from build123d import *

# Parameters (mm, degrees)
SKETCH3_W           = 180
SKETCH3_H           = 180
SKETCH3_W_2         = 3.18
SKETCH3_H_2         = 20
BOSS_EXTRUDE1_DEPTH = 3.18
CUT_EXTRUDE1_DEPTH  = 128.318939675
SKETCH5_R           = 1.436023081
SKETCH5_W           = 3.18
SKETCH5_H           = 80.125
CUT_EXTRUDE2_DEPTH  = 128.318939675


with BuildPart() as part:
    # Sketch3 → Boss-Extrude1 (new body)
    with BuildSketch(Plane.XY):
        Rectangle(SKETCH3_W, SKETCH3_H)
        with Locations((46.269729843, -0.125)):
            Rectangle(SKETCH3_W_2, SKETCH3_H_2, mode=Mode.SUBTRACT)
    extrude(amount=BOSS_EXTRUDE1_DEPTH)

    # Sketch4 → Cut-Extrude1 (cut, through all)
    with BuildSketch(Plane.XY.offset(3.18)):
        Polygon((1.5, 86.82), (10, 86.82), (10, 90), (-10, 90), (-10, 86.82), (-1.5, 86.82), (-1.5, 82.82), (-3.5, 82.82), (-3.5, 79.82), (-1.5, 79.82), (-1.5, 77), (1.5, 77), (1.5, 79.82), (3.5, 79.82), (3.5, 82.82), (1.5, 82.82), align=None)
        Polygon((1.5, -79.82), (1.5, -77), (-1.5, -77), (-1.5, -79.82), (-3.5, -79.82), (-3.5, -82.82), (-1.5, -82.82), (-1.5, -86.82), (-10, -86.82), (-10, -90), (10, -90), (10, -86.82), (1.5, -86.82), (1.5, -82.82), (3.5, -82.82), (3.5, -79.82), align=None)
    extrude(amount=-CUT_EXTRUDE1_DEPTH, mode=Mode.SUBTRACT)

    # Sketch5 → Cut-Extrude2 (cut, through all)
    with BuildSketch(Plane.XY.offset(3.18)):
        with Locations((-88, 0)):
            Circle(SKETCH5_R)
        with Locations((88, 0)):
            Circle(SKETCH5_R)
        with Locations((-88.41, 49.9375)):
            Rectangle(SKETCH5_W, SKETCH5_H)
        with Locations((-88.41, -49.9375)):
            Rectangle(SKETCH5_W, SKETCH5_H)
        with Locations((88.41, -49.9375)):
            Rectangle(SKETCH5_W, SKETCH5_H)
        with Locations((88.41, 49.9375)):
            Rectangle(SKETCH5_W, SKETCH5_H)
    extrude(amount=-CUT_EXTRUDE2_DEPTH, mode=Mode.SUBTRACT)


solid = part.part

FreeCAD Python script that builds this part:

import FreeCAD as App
import Part
import Sketcher

doc = App.newDocument("Part")
body = doc.addObject("PartDesign::Body", "Body")

sketch1 = body.newObject("Sketcher::SketchObject", "Sketch")
sketch1.AttachmentSupport = (doc.getObject("XY_Plane"), [""])
sketch1.MapMode = "FlatFace"
sketch1.addGeometry(Part.LineSegment(App.Vector(-90, 90, 0), App.Vector(-90, -90, 0)), False)
sketch1.addGeometry(Part.LineSegment(App.Vector(-90, -90, 0), App.Vector(90, -90, 0)), False)
sketch1.addGeometry(Part.LineSegment(App.Vector(90, -90, 0), App.Vector(90, 90, 0)), False)
sketch1.addGeometry(Part.LineSegment(App.Vector(90, 90, 0), App.Vector(-90, 90, 0)), False)
sketch1.addGeometry(Part.LineSegment(App.Vector(47.85973, -10.125, 0), App.Vector(44.67973, -10.125, 0)), False)
sketch1.addGeometry(Part.LineSegment(App.Vector(44.67973, -10.125, 0), App.Vector(44.67973, 9.875, 0)), False)
sketch1.addGeometry(Part.LineSegment(App.Vector(44.67973, 9.875, 0), App.Vector(47.85973, 9.875, 0)), False)
sketch1.addGeometry(Part.LineSegment(App.Vector(47.85973, 9.875, 0), App.Vector(47.85973, -10.125, 0)), False)
sketch1.addConstraint(Sketcher.Constraint("Coincident", 0, 2, 1, 1))
sketch1.addConstraint(Sketcher.Constraint("Coincident", 1, 2, 2, 1))
sketch1.addConstraint(Sketcher.Constraint("Coincident", 2, 2, 3, 1))
sketch1.addConstraint(Sketcher.Constraint("Coincident", 3, 2, 0, 1))
sketch1.addConstraint(Sketcher.Constraint("Coincident", 4, 2, 5, 1))
sketch1.addConstraint(Sketcher.Constraint("Coincident", 5, 2, 6, 1))
sketch1.addConstraint(Sketcher.Constraint("Coincident", 6, 2, 7, 1))
sketch1.addConstraint(Sketcher.Constraint("Coincident", 7, 2, 4, 1))
sketch1.addConstraint(Sketcher.Constraint("Vertical", 0))
sketch1.addConstraint(Sketcher.Constraint("Horizontal", 1))
sketch1.addConstraint(Sketcher.Constraint("Vertical", 2))
sketch1.addConstraint(Sketcher.Constraint("Horizontal", 3))
sketch1.addConstraint(Sketcher.Constraint("Horizontal", 4))
sketch1.addConstraint(Sketcher.Constraint("Vertical", 5))
sketch1.addConstraint(Sketcher.Constraint("Horizontal", 6))
sketch1.addConstraint(Sketcher.Constraint("Vertical", 7))
sketch1.addConstraint(Sketcher.Constraint("Symmetric", 0, 2, 2, 2, -1, 1))
sketch1.addConstraint(Sketcher.Constraint("Equal", 3, 0))
sketch1.addConstraint(Sketcher.Constraint("DistanceX", 1, 1, 1, 2, 180.0))
sketch1.addConstraint(Sketcher.Constraint("DistanceY", 5, 1, 5, 2, 20.0))
sketch1.addConstraint(Sketcher.Constraint("DistanceX", 4, 2, 4, 1, 3.18))
sketch1.addConstraint(Sketcher.Constraint("DistanceY", 4, 2, -1, 1, 10.125))
sketch1.addConstraint(Sketcher.Constraint("DistanceX", -1, 1, 4, 2, 44.67973))
pad1 = body.newObject("PartDesign::Pad", "Pad")
pad1.Profile = sketch1
pad1.Length = 3.18

sketch2 = body.newObject("Sketcher::SketchObject", "Sketch001")
sketch2.AttachmentSupport = (doc.getObject("XY_Plane"), [""])
sketch2.MapMode = "FlatFace"
sketch2.AttachmentOffset = App.Placement(App.Vector(0, 0, 3.18), App.Rotation())
sketch2.addGeometry(Part.LineSegment(App.Vector(1.5, 86.82, 0), App.Vector(10, 86.82, 0)), False)
sketch2.addGeometry(Part.LineSegment(App.Vector(10, 86.82, 0), App.Vector(10, 90, 0)), False)
sketch2.addGeometry(Part.LineSegment(App.Vector(10, 90, 0), App.Vector(-10, 90, 0)), False)
sketch2.addGeometry(Part.LineSegment(App.Vector(-10, 90, 0), App.Vector(-10, 86.82, 0)), False)
sketch2.addGeometry(Part.LineSegment(App.Vector(-10, 86.82, 0), App.Vector(-1.5, 86.82, 0)), False)
sketch2.addGeometry(Part.LineSegment(App.Vector(-1.5, 86.82, 0), App.Vector(-1.5, 82.82, 0)), False)
sketch2.addGeometry(Part.LineSegment(App.Vector(-1.5, 82.82, 0), App.Vector(-3.5, 82.82, 0)), False)
sketch2.addGeometry(Part.LineSegment(App.Vector(-3.5, 82.82, 0), App.Vector(-3.5, 79.82, 0)), False)
sketch2.addGeometry(Part.LineSegment(App.Vector(-3.5, 79.82, 0), App.Vector(-1.5, 79.82, 0)), False)
sketch2.addGeometry(Part.LineSegment(App.Vector(-1.5, 79.82, 0), App.Vector(-1.5, 77, 0)), False)
sketch2.addGeometry(Part.LineSegment(App.Vector(-1.5, 77, 0), App.Vector(1.5, 77, 0)), False)
sketch2.addGeometry(Part.LineSegment(App.Vector(1.5, 77, 0), App.Vector(1.5, 79.82, 0)), False)
sketch2.addGeometry(Part.LineSegment(App.Vector(1.5, 79.82, 0), App.Vector(3.5, 79.82, 0)), False)
sketch2.addGeometry(Part.LineSegment(App.Vector(3.5, 79.82, 0), App.Vector(3.5, 82.82, 0)), False)
sketch2.addGeometry(Part.LineSegment(App.Vector(3.5, 82.82, 0), App.Vector(1.5, 82.82, 0)), False)
sketch2.addGeometry(Part.LineSegment(App.Vector(1.5, 82.82, 0), App.Vector(1.5, 86.82, 0)), False)
sketch2.addGeometry(Part.LineSegment(App.Vector(1.5, -79.82, 0), App.Vector(1.5, -77, 0)), False)
sketch2.addGeometry(Part.LineSegment(App.Vector(1.5, -77, 0), App.Vector(-1.5, -77, 0)), False)
sketch2.addGeometry(Part.LineSegment(App.Vector(-1.5, -77, 0), App.Vector(-1.5, -79.82, 0)), False)
sketch2.addGeometry(Part.LineSegment(App.Vector(-1.5, -79.82, 0), App.Vector(-3.5, -79.82, 0)), False)
sketch2.addGeometry(Part.LineSegment(App.Vector(-3.5, -79.82, 0), App.Vector(-3.5, -82.82, 0)), False)
sketch2.addGeometry(Part.LineSegment(App.Vector(-3.5, -82.82, 0), App.Vector(-1.5, -82.82, 0)), False)
sketch2.addGeometry(Part.LineSegment(App.Vector(-1.5, -82.82, 0), App.Vector(-1.5, -86.82, 0)), False)
sketch2.addGeometry(Part.LineSegment(App.Vector(-1.5, -86.82, 0), App.Vector(-10, -86.82, 0)), False)
sketch2.addGeometry(Part.LineSegment(App.Vector(-10, -86.82, 0), App.Vector(-10, -90, 0)), False)
sketch2.addGeometry(Part.LineSegment(App.Vector(-10, -90, 0), App.Vector(10, -90, 0)), False)
sketch2.addGeometry(Part.LineSegment(App.Vector(10, -90, 0), App.Vector(10, -86.82, 0)), False)
sketch2.addGeometry(Part.LineSegment(App.Vector(10, -86.82, 0), App.Vector(1.5, -86.82, 0)), False)
sketch2.addGeometry(Part.LineSegment(App.Vector(1.5, -86.82, 0), App.Vector(1.5, -82.82, 0)), False)
sketch2.addGeometry(Part.LineSegment(App.Vector(1.5, -82.82, 0), App.Vector(3.5, -82.82, 0)), False)
sketch2.addGeometry(Part.LineSegment(App.Vector(3.5, -82.82, 0), App.Vector(3.5, -79.82, 0)), False)
sketch2.addGeometry(Part.LineSegment(App.Vector(3.5, -79.82, 0), App.Vector(1.5, -79.82, 0)), False)
sketch2.addConstraint(Sketcher.Constraint("Coincident", 0, 2, 1, 1))
sketch2.addConstraint(Sketcher.Constraint("Coincident", 1, 2, 2, 1))
sketch2.addConstraint(Sketcher.Constraint("Coincident", 2, 2, 3, 1))
sketch2.addConstraint(Sketcher.Constraint("Coincident", 3, 2, 4, 1))
sketch2.addConstraint(Sketcher.Constraint("Coincident", 4, 2, 5, 1))
sketch2.addConstraint(Sketcher.Constraint("Coincident", 5, 2, 6, 1))
sketch2.addConstraint(Sketcher.Constraint("Coincident", 6, 2, 7, 1))
sketch2.addConstraint(Sketcher.Constraint("Coincident", 7, 2, 8, 1))
sketch2.addConstraint(Sketcher.Constraint("Coincident", 8, 2, 9, 1))
sketch2.addConstraint(Sketcher.Constraint("Coincident", 9, 2, 10, 1))
sketch2.addConstraint(Sketcher.Constraint("Coincident", 10, 2, 11, 1))
sketch2.addConstraint(Sketcher.Constraint("Coincident", 11, 2, 12, 1))
sketch2.addConstraint(Sketcher.Constraint("Coincident", 12, 2, 13, 1))
sketch2.addConstraint(Sketcher.Constraint("Coincident", 13, 2, 14, 1))
sketch2.addConstraint(Sketcher.Constraint("Coincident", 14, 2, 15, 1))
sketch2.addConstraint(Sketcher.Constraint("Coincident", 15, 2, 0, 1))
sketch2.addConstraint(Sketcher.Constraint("Coincident", 16, 2, 17, 1))
sketch2.addConstraint(Sketcher.Constraint("Coincident", 17, 2, 18, 1))
sketch2.addConstraint(Sketcher.Constraint("Coincident", 18, 2, 19, 1))
sketch2.addConstraint(Sketcher.Constraint("Coincident", 19, 2, 20, 1))
sketch2.addConstraint(Sketcher.Constraint("Coincident", 20, 2, 21, 1))
sketch2.addConstraint(Sketcher.Constraint("Coincident", 21, 2, 22, 1))
sketch2.addConstraint(Sketcher.Constraint("Coincident", 22, 2, 23, 1))
sketch2.addConstraint(Sketcher.Constraint("Coincident", 23, 2, 24, 1))
sketch2.addConstraint(Sketcher.Constraint("Coincident", 24, 2, 25, 1))
sketch2.addConstraint(Sketcher.Constraint("Coincident", 25, 2, 26, 1))
sketch2.addConstraint(Sketcher.Constraint("Coincident", 26, 2, 27, 1))
sketch2.addConstraint(Sketcher.Constraint("Coincident", 27, 2, 28, 1))
sketch2.addConstraint(Sketcher.Constraint("Coincident", 28, 2, 29, 1))
sketch2.addConstraint(Sketcher.Constraint("Coincident", 29, 2, 30, 1))
sketch2.addConstraint(Sketcher.Constraint("Coincident", 30, 2, 31, 1))
sketch2.addConstraint(Sketcher.Constraint("Coincident", 31, 2, 16, 1))
sketch2.addConstraint(Sketcher.Constraint("Horizontal", 0))
sketch2.addConstraint(Sketcher.Constraint("Vertical", 1))
sketch2.addConstraint(Sketcher.Constraint("Horizontal", 2))
sketch2.addConstraint(Sketcher.Constraint("Vertical", 3))
sketch2.addConstraint(Sketcher.Constraint("Horizontal", 4))
sketch2.addConstraint(Sketcher.Constraint("Vertical", 5))
sketch2.addConstraint(Sketcher.Constraint("Horizontal", 6))
sketch2.addConstraint(Sketcher.Constraint("Vertical", 7))
sketch2.addConstraint(Sketcher.Constraint("Horizontal", 8))
sketch2.addConstraint(Sketcher.Constraint("Vertical", 9))
sketch2.addConstraint(Sketcher.Constraint("Horizontal", 10))
sketch2.addConstraint(Sketcher.Constraint("Vertical", 11))
sketch2.addConstraint(Sketcher.Constraint("Horizontal", 12))
sketch2.addConstraint(Sketcher.Constraint("Vertical", 13))
sketch2.addConstraint(Sketcher.Constraint("Horizontal", 14))
sketch2.addConstraint(Sketcher.Constraint("Vertical", 15))
sketch2.addConstraint(Sketcher.Constraint("Vertical", 16))
sketch2.addConstraint(Sketcher.Constraint("Horizontal", 17))
sketch2.addConstraint(Sketcher.Constraint("Vertical", 18))
sketch2.addConstraint(Sketcher.Constraint("Horizontal", 19))
sketch2.addConstraint(Sketcher.Constraint("Vertical", 20))
sketch2.addConstraint(Sketcher.Constraint("Horizontal", 21))
sketch2.addConstraint(Sketcher.Constraint("Vertical", 22))
sketch2.addConstraint(Sketcher.Constraint("Horizontal", 23))
sketch2.addConstraint(Sketcher.Constraint("Vertical", 24))
sketch2.addConstraint(Sketcher.Constraint("Horizontal", 25))
sketch2.addConstraint(Sketcher.Constraint("Vertical", 26))
sketch2.addConstraint(Sketcher.Constraint("Horizontal", 27))
sketch2.addConstraint(Sketcher.Constraint("Vertical", 28))
sketch2.addConstraint(Sketcher.Constraint("Horizontal", 29))
sketch2.addConstraint(Sketcher.Constraint("Vertical", 30))
sketch2.addConstraint(Sketcher.Constraint("Horizontal", 31))
sketch2.addConstraint(Sketcher.Constraint("Symmetric", 9, 2, 16, 2, -1, 1))
sketch2.addConstraint(Sketcher.Constraint("Symmetric", 11, 2, 18, 2, -1, 1))
sketch2.addConstraint(Sketcher.Constraint("Symmetric", 13, 2, 20, 2, -1, 1))
sketch2.addConstraint(Sketcher.Constraint("Symmetric", 15, 2, 22, 2, -1, 1))
sketch2.addConstraint(Sketcher.Constraint("Symmetric", 1, 2, 24, 2, -1, 1))
sketch2.addConstraint(Sketcher.Constraint("Symmetric", 3, 2, 26, 2, -1, 1))
sketch2.addConstraint(Sketcher.Constraint("Symmetric", 5, 2, 28, 2, -1, 1))
sketch2.addConstraint(Sketcher.Constraint("Symmetric", 7, 2, 30, 2, -1, 1))
sketch2.addConstraint(Sketcher.Constraint("Symmetric", 0, 2, 3, 2, -2))
sketch2.addConstraint(Sketcher.Constraint("Symmetric", 8, 2, 11, 2, -2))
sketch2.addConstraint(Sketcher.Constraint("Symmetric", 6, 2, 13, 2, -2))
sketch2.addConstraint(Sketcher.Constraint("Vertical", 5, 2, 8, 2))
sketch2.addConstraint(Sketcher.Constraint("Vertical", 11, 2, 14, 2))
sketch2.addConstraint(Sketcher.Constraint("Equal", 17, 7))
sketch2.addConstraint(Sketcher.Constraint("DistanceX", 2, 2, 2, 1, 20.0))
sketch2.addConstraint(Sketcher.Constraint("DistanceX", 6, 2, 6, 1, 2.0))
sketch2.addConstraint(Sketcher.Constraint("DistanceX", 10, 1, 10, 2, 3.0))
sketch2.addConstraint(Sketcher.Constraint("DistanceY", 5, 2, 5, 1, 4.0))
sketch2.addConstraint(Sketcher.Constraint("DistanceY", -1, 1, 1, 2, 90.0))
sketch2.addConstraint(Sketcher.Constraint("DistanceY", -1, 1, 9, 2, 77.0))
sketch2.addConstraint(Sketcher.Constraint("DistanceY", 1, 1, 1, 2, 3.18))
pocket1 = body.newObject("PartDesign::Pocket", "Pocket")
pocket1.Profile = sketch2
pocket1.Type = "ThroughAll"

sketch3 = body.newObject("Sketcher::SketchObject", "Sketch002")
sketch3.AttachmentSupport = (doc.getObject("XY_Plane"), [""])
sketch3.MapMode = "FlatFace"
sketch3.AttachmentOffset = App.Placement(App.Vector(0, 0, 3.18), App.Rotation())
sketch3.addGeometry(Part.Circle(App.Vector(-88, 0, 0), App.Vector(0, 0, 1), 1.436023), False)
sketch3.addGeometry(Part.Circle(App.Vector(88, 0, 0), App.Vector(0, 0, 1), 1.436023), False)
sketch3.addGeometry(Part.LineSegment(App.Vector(-90, 90, 0), App.Vector(-90, 9.875, 0)), False)
sketch3.addGeometry(Part.LineSegment(App.Vector(-90, 9.875, 0), App.Vector(-86.82, 9.875, 0)), False)
sketch3.addGeometry(Part.LineSegment(App.Vector(-86.82, 9.875, 0), App.Vector(-86.82, 90, 0)), False)
sketch3.addGeometry(Part.LineSegment(App.Vector(-86.82, 90, 0), App.Vector(-90, 90, 0)), False)
sketch3.addGeometry(Part.LineSegment(App.Vector(-90, -9.875, 0), App.Vector(-90, -90, 0)), False)
sketch3.addGeometry(Part.LineSegment(App.Vector(-90, -90, 0), App.Vector(-86.82, -90, 0)), False)
sketch3.addGeometry(Part.LineSegment(App.Vector(-86.82, -90, 0), App.Vector(-86.82, -9.875, 0)), False)
sketch3.addGeometry(Part.LineSegment(App.Vector(-86.82, -9.875, 0), App.Vector(-90, -9.875, 0)), False)
sketch3.addGeometry(Part.LineSegment(App.Vector(86.82, -9.875, 0), App.Vector(86.82, -90, 0)), False)
sketch3.addGeometry(Part.LineSegment(App.Vector(86.82, -90, 0), App.Vector(90, -90, 0)), False)
sketch3.addGeometry(Part.LineSegment(App.Vector(90, -90, 0), App.Vector(90, -9.875, 0)), False)
sketch3.addGeometry(Part.LineSegment(App.Vector(90, -9.875, 0), App.Vector(86.82, -9.875, 0)), False)
sketch3.addGeometry(Part.LineSegment(App.Vector(86.82, 90, 0), App.Vector(86.82, 9.875, 0)), False)
sketch3.addGeometry(Part.LineSegment(App.Vector(86.82, 9.875, 0), App.Vector(90, 9.875, 0)), False)
sketch3.addGeometry(Part.LineSegment(App.Vector(90, 9.875, 0), App.Vector(90, 90, 0)), False)
sketch3.addGeometry(Part.LineSegment(App.Vector(90, 90, 0), App.Vector(86.82, 90, 0)), False)
sketch3.addConstraint(Sketcher.Constraint("Coincident", 2, 2, 3, 1))
sketch3.addConstraint(Sketcher.Constraint("Coincident", 3, 2, 4, 1))
sketch3.addConstraint(Sketcher.Constraint("Coincident", 4, 2, 5, 1))
sketch3.addConstraint(Sketcher.Constraint("Coincident", 5, 2, 2, 1))
sketch3.addConstraint(Sketcher.Constraint("Coincident", 6, 2, 7, 1))
sketch3.addConstraint(Sketcher.Constraint("Coincident", 7, 2, 8, 1))
sketch3.addConstraint(Sketcher.Constraint("Coincident", 8, 2, 9, 1))
sketch3.addConstraint(Sketcher.Constraint("Coincident", 9, 2, 6, 1))
sketch3.addConstraint(Sketcher.Constraint("Coincident", 10, 2, 11, 1))
sketch3.addConstraint(Sketcher.Constraint("Coincident", 11, 2, 12, 1))
sketch3.addConstraint(Sketcher.Constraint("Coincident", 12, 2, 13, 1))
sketch3.addConstraint(Sketcher.Constraint("Coincident", 13, 2, 10, 1))
sketch3.addConstraint(Sketcher.Constraint("Coincident", 14, 2, 15, 1))
sketch3.addConstraint(Sketcher.Constraint("Coincident", 15, 2, 16, 1))
sketch3.addConstraint(Sketcher.Constraint("Coincident", 16, 2, 17, 1))
sketch3.addConstraint(Sketcher.Constraint("Coincident", 17, 2, 14, 1))
sketch3.addConstraint(Sketcher.Constraint("Vertical", 2))
sketch3.addConstraint(Sketcher.Constraint("Horizontal", 3))
sketch3.addConstraint(Sketcher.Constraint("Vertical", 4))
sketch3.addConstraint(Sketcher.Constraint("Horizontal", 5))
sketch3.addConstraint(Sketcher.Constraint("Vertical", 6))
sketch3.addConstraint(Sketcher.Constraint("Horizontal", 7))
sketch3.addConstraint(Sketcher.Constraint("Vertical", 8))
sketch3.addConstraint(Sketcher.Constraint("Horizontal", 9))
sketch3.addConstraint(Sketcher.Constraint("Vertical", 10))
sketch3.addConstraint(Sketcher.Constraint("Horizontal", 11))
sketch3.addConstraint(Sketcher.Constraint("Vertical", 12))
sketch3.addConstraint(Sketcher.Constraint("Horizontal", 13))
sketch3.addConstraint(Sketcher.Constraint("Vertical", 14))
sketch3.addConstraint(Sketcher.Constraint("Horizontal", 15))
sketch3.addConstraint(Sketcher.Constraint("Vertical", 16))
sketch3.addConstraint(Sketcher.Constraint("Horizontal", 17))
sketch3.addConstraint(Sketcher.Constraint("Equal", 0, 1))
sketch3.addConstraint(Sketcher.Constraint("Symmetric", 0, 3, 1, 3, -1, 1))
sketch3.addConstraint(Sketcher.Constraint("Symmetric", 4, 2, 10, 2, -1, 1))
sketch3.addConstraint(Sketcher.Constraint("Symmetric", 2, 2, 12, 2, -1, 1))
sketch3.addConstraint(Sketcher.Constraint("Symmetric", 8, 2, 14, 2, -1, 1))
sketch3.addConstraint(Sketcher.Constraint("Symmetric", 6, 2, 16, 2, -1, 1))
sketch3.addConstraint(Sketcher.Constraint("Symmetric", 7, 2, 10, 2, -2))
sketch3.addConstraint(Sketcher.Constraint("Symmetric", 9, 2, 12, 2, -2))
sketch3.addConstraint(Sketcher.Constraint("PointOnObject", 0, 3, -1))
sketch3.addConstraint(Sketcher.Constraint("DistanceX", 0, 3, -1, 1, 88.0))
sketch3.addConstraint(Sketcher.Constraint("DistanceX", 2, 2, -1, 1, 90.0))
sketch3.addConstraint(Sketcher.Constraint("DistanceY", -1, 1, 4, 2, 90.0))
sketch3.addConstraint(Sketcher.Constraint("DistanceX", 3, 1, 3, 2, 3.18))
sketch3.addConstraint(Sketcher.Constraint("DistanceY", 2, 2, 2, 1, 80.125))
sketch3.addConstraint(Sketcher.Constraint("Diameter", 0, 2.872046))
pocket2 = body.newObject("PartDesign::Pocket", "Pocket001")
pocket2.Profile = sketch3
pocket2.Type = "ThroughAll"

doc.recompute()
